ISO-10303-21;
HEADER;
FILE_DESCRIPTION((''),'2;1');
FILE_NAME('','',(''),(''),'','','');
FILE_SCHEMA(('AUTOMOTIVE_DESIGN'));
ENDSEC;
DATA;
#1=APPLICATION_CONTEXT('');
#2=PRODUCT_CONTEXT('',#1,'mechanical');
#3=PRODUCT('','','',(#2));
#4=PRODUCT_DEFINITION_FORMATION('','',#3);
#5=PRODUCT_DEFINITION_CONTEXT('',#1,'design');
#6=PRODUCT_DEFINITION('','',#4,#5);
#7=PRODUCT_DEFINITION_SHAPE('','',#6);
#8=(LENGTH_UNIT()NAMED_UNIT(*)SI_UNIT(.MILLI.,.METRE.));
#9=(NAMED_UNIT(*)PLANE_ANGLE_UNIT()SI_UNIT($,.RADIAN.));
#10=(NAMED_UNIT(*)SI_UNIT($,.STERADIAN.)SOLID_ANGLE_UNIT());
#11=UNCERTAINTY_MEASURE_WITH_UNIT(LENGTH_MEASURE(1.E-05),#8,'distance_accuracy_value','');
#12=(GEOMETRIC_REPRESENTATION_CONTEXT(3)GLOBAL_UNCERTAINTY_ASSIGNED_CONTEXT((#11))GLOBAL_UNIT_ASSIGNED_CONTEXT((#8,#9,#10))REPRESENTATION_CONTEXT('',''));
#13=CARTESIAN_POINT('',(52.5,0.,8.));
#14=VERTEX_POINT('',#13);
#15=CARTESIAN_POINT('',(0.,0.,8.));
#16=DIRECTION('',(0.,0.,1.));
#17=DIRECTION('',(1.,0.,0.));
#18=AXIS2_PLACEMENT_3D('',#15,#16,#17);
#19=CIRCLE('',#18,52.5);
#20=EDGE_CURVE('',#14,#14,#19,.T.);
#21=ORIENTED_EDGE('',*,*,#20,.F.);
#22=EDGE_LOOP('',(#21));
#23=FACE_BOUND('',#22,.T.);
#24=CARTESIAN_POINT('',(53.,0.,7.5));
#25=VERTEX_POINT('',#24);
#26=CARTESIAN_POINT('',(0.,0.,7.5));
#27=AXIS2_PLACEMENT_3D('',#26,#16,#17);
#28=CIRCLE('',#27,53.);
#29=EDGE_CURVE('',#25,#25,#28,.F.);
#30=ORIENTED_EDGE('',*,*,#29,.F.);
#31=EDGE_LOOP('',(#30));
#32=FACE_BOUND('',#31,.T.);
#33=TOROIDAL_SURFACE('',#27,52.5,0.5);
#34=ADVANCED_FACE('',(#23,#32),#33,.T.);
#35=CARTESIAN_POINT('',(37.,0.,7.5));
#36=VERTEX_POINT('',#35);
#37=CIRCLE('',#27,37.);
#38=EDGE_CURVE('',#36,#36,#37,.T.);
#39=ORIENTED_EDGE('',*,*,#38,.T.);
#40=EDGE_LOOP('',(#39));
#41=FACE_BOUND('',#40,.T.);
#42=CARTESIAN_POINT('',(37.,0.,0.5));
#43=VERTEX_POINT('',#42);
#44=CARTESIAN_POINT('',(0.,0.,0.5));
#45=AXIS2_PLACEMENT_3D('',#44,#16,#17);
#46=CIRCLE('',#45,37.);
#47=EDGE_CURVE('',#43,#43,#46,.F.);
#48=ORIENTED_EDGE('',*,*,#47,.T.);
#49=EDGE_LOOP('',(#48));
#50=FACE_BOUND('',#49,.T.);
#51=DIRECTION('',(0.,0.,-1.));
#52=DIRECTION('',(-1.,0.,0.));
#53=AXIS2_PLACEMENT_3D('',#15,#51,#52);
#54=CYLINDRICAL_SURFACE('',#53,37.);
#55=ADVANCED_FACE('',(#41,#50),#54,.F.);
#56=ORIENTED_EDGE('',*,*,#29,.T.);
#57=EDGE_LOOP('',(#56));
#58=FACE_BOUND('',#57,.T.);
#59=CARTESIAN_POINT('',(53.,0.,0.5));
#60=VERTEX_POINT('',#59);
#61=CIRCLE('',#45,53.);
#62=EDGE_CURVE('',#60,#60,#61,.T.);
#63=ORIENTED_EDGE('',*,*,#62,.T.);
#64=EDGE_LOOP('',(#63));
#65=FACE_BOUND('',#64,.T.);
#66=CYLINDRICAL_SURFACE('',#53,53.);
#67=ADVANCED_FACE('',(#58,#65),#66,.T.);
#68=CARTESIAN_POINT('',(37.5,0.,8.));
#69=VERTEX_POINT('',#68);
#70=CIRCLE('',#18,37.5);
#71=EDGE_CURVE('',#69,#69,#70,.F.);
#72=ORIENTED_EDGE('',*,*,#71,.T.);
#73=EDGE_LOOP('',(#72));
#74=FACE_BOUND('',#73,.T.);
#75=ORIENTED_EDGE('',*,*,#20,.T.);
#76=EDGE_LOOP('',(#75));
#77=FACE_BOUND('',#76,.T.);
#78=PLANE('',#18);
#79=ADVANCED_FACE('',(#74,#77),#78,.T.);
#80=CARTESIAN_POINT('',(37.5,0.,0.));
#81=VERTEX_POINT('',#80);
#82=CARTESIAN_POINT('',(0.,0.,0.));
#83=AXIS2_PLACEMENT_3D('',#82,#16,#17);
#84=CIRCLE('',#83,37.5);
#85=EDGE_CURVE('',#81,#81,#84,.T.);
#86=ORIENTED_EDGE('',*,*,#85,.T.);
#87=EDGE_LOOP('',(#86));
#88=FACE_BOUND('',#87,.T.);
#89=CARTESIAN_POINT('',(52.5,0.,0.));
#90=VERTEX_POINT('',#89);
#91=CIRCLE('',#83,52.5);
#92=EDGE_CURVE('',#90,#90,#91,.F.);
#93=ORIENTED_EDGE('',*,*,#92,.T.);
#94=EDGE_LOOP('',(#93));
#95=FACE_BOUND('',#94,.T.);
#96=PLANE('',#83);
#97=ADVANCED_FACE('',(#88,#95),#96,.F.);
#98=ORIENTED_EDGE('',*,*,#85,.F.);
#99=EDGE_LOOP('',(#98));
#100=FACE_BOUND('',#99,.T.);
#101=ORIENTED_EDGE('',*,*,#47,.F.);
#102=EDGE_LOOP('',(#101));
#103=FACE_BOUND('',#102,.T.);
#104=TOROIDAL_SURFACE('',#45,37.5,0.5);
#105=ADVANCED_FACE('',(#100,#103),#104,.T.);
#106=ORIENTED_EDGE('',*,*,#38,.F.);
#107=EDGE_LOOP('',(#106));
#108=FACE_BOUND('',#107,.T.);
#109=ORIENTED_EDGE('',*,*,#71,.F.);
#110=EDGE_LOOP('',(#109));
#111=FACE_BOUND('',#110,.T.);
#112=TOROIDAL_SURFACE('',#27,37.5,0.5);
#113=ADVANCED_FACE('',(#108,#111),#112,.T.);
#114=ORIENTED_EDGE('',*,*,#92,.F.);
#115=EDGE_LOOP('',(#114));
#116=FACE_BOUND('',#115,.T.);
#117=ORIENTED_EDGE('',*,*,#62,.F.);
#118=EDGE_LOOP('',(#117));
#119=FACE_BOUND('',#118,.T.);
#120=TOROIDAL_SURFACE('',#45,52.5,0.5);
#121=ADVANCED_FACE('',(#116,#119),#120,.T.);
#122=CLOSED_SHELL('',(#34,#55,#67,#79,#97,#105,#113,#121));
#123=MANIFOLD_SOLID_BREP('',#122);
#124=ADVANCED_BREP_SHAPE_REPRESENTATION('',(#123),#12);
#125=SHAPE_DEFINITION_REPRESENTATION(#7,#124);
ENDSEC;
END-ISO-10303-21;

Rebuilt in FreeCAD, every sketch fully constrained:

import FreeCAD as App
import Part
import Sketcher


def edges_at(feature, points):
    """Names of the edges that pass closest to the given points."""
    edges = feature.Shape.Edges
    near = lambda p: min(range(len(edges)), key=lambda i: edges[i].distToShape(Part.Vertex(*p))[0])
    return sorted({f"Edge{near(p) + 1}" for p in points})

doc = App.newDocument("Part")
body = doc.addObject("PartDesign::Body", "Body")

# Sketch on XY plane
sketch1 = doc.addObject("Sketcher::SketchObject", "Sketch")
body.addObject(sketch1)
sketch1.AttachmentSupport = (doc.XY_Plane, [""])
sketch1.MapMode = "FlatFace"
sketch1.addGeometry([
    Part.Circle(App.Vector(0, 0, 0), App.Vector(0, 0, 1), 53),
    Part.Circle(App.Vector(0, 0, 0), App.Vector(0, 0, 1), 37),
], False)
sketch1.addConstraint([
    Sketcher.Constraint("Coincident", 0, 3, -1, 1),
    Sketcher.Constraint("Coincident", 1, 3, -1, 1),
    Sketcher.Constraint("Diameter", 0, 106.0),
    Sketcher.Constraint("Diameter", 1, 74.0),
])
pad1 = doc.addObject("PartDesign::Pad", "Pad")
body.addObject(pad1)
pad1.Profile = sketch1
pad1.Length = 8
doc.recompute()

fillet = doc.addObject("PartDesign::Fillet", "Fillet")
body.addObject(fillet)
fillet.Base = (pad1, edges_at(pad1, [
    (-53, 0, 0),
    (-53, 0, 8),
    (-37, 0, 0),
    (-37, 0, 8),
]))
fillet.Radius = 0.5

doc.recompute()
